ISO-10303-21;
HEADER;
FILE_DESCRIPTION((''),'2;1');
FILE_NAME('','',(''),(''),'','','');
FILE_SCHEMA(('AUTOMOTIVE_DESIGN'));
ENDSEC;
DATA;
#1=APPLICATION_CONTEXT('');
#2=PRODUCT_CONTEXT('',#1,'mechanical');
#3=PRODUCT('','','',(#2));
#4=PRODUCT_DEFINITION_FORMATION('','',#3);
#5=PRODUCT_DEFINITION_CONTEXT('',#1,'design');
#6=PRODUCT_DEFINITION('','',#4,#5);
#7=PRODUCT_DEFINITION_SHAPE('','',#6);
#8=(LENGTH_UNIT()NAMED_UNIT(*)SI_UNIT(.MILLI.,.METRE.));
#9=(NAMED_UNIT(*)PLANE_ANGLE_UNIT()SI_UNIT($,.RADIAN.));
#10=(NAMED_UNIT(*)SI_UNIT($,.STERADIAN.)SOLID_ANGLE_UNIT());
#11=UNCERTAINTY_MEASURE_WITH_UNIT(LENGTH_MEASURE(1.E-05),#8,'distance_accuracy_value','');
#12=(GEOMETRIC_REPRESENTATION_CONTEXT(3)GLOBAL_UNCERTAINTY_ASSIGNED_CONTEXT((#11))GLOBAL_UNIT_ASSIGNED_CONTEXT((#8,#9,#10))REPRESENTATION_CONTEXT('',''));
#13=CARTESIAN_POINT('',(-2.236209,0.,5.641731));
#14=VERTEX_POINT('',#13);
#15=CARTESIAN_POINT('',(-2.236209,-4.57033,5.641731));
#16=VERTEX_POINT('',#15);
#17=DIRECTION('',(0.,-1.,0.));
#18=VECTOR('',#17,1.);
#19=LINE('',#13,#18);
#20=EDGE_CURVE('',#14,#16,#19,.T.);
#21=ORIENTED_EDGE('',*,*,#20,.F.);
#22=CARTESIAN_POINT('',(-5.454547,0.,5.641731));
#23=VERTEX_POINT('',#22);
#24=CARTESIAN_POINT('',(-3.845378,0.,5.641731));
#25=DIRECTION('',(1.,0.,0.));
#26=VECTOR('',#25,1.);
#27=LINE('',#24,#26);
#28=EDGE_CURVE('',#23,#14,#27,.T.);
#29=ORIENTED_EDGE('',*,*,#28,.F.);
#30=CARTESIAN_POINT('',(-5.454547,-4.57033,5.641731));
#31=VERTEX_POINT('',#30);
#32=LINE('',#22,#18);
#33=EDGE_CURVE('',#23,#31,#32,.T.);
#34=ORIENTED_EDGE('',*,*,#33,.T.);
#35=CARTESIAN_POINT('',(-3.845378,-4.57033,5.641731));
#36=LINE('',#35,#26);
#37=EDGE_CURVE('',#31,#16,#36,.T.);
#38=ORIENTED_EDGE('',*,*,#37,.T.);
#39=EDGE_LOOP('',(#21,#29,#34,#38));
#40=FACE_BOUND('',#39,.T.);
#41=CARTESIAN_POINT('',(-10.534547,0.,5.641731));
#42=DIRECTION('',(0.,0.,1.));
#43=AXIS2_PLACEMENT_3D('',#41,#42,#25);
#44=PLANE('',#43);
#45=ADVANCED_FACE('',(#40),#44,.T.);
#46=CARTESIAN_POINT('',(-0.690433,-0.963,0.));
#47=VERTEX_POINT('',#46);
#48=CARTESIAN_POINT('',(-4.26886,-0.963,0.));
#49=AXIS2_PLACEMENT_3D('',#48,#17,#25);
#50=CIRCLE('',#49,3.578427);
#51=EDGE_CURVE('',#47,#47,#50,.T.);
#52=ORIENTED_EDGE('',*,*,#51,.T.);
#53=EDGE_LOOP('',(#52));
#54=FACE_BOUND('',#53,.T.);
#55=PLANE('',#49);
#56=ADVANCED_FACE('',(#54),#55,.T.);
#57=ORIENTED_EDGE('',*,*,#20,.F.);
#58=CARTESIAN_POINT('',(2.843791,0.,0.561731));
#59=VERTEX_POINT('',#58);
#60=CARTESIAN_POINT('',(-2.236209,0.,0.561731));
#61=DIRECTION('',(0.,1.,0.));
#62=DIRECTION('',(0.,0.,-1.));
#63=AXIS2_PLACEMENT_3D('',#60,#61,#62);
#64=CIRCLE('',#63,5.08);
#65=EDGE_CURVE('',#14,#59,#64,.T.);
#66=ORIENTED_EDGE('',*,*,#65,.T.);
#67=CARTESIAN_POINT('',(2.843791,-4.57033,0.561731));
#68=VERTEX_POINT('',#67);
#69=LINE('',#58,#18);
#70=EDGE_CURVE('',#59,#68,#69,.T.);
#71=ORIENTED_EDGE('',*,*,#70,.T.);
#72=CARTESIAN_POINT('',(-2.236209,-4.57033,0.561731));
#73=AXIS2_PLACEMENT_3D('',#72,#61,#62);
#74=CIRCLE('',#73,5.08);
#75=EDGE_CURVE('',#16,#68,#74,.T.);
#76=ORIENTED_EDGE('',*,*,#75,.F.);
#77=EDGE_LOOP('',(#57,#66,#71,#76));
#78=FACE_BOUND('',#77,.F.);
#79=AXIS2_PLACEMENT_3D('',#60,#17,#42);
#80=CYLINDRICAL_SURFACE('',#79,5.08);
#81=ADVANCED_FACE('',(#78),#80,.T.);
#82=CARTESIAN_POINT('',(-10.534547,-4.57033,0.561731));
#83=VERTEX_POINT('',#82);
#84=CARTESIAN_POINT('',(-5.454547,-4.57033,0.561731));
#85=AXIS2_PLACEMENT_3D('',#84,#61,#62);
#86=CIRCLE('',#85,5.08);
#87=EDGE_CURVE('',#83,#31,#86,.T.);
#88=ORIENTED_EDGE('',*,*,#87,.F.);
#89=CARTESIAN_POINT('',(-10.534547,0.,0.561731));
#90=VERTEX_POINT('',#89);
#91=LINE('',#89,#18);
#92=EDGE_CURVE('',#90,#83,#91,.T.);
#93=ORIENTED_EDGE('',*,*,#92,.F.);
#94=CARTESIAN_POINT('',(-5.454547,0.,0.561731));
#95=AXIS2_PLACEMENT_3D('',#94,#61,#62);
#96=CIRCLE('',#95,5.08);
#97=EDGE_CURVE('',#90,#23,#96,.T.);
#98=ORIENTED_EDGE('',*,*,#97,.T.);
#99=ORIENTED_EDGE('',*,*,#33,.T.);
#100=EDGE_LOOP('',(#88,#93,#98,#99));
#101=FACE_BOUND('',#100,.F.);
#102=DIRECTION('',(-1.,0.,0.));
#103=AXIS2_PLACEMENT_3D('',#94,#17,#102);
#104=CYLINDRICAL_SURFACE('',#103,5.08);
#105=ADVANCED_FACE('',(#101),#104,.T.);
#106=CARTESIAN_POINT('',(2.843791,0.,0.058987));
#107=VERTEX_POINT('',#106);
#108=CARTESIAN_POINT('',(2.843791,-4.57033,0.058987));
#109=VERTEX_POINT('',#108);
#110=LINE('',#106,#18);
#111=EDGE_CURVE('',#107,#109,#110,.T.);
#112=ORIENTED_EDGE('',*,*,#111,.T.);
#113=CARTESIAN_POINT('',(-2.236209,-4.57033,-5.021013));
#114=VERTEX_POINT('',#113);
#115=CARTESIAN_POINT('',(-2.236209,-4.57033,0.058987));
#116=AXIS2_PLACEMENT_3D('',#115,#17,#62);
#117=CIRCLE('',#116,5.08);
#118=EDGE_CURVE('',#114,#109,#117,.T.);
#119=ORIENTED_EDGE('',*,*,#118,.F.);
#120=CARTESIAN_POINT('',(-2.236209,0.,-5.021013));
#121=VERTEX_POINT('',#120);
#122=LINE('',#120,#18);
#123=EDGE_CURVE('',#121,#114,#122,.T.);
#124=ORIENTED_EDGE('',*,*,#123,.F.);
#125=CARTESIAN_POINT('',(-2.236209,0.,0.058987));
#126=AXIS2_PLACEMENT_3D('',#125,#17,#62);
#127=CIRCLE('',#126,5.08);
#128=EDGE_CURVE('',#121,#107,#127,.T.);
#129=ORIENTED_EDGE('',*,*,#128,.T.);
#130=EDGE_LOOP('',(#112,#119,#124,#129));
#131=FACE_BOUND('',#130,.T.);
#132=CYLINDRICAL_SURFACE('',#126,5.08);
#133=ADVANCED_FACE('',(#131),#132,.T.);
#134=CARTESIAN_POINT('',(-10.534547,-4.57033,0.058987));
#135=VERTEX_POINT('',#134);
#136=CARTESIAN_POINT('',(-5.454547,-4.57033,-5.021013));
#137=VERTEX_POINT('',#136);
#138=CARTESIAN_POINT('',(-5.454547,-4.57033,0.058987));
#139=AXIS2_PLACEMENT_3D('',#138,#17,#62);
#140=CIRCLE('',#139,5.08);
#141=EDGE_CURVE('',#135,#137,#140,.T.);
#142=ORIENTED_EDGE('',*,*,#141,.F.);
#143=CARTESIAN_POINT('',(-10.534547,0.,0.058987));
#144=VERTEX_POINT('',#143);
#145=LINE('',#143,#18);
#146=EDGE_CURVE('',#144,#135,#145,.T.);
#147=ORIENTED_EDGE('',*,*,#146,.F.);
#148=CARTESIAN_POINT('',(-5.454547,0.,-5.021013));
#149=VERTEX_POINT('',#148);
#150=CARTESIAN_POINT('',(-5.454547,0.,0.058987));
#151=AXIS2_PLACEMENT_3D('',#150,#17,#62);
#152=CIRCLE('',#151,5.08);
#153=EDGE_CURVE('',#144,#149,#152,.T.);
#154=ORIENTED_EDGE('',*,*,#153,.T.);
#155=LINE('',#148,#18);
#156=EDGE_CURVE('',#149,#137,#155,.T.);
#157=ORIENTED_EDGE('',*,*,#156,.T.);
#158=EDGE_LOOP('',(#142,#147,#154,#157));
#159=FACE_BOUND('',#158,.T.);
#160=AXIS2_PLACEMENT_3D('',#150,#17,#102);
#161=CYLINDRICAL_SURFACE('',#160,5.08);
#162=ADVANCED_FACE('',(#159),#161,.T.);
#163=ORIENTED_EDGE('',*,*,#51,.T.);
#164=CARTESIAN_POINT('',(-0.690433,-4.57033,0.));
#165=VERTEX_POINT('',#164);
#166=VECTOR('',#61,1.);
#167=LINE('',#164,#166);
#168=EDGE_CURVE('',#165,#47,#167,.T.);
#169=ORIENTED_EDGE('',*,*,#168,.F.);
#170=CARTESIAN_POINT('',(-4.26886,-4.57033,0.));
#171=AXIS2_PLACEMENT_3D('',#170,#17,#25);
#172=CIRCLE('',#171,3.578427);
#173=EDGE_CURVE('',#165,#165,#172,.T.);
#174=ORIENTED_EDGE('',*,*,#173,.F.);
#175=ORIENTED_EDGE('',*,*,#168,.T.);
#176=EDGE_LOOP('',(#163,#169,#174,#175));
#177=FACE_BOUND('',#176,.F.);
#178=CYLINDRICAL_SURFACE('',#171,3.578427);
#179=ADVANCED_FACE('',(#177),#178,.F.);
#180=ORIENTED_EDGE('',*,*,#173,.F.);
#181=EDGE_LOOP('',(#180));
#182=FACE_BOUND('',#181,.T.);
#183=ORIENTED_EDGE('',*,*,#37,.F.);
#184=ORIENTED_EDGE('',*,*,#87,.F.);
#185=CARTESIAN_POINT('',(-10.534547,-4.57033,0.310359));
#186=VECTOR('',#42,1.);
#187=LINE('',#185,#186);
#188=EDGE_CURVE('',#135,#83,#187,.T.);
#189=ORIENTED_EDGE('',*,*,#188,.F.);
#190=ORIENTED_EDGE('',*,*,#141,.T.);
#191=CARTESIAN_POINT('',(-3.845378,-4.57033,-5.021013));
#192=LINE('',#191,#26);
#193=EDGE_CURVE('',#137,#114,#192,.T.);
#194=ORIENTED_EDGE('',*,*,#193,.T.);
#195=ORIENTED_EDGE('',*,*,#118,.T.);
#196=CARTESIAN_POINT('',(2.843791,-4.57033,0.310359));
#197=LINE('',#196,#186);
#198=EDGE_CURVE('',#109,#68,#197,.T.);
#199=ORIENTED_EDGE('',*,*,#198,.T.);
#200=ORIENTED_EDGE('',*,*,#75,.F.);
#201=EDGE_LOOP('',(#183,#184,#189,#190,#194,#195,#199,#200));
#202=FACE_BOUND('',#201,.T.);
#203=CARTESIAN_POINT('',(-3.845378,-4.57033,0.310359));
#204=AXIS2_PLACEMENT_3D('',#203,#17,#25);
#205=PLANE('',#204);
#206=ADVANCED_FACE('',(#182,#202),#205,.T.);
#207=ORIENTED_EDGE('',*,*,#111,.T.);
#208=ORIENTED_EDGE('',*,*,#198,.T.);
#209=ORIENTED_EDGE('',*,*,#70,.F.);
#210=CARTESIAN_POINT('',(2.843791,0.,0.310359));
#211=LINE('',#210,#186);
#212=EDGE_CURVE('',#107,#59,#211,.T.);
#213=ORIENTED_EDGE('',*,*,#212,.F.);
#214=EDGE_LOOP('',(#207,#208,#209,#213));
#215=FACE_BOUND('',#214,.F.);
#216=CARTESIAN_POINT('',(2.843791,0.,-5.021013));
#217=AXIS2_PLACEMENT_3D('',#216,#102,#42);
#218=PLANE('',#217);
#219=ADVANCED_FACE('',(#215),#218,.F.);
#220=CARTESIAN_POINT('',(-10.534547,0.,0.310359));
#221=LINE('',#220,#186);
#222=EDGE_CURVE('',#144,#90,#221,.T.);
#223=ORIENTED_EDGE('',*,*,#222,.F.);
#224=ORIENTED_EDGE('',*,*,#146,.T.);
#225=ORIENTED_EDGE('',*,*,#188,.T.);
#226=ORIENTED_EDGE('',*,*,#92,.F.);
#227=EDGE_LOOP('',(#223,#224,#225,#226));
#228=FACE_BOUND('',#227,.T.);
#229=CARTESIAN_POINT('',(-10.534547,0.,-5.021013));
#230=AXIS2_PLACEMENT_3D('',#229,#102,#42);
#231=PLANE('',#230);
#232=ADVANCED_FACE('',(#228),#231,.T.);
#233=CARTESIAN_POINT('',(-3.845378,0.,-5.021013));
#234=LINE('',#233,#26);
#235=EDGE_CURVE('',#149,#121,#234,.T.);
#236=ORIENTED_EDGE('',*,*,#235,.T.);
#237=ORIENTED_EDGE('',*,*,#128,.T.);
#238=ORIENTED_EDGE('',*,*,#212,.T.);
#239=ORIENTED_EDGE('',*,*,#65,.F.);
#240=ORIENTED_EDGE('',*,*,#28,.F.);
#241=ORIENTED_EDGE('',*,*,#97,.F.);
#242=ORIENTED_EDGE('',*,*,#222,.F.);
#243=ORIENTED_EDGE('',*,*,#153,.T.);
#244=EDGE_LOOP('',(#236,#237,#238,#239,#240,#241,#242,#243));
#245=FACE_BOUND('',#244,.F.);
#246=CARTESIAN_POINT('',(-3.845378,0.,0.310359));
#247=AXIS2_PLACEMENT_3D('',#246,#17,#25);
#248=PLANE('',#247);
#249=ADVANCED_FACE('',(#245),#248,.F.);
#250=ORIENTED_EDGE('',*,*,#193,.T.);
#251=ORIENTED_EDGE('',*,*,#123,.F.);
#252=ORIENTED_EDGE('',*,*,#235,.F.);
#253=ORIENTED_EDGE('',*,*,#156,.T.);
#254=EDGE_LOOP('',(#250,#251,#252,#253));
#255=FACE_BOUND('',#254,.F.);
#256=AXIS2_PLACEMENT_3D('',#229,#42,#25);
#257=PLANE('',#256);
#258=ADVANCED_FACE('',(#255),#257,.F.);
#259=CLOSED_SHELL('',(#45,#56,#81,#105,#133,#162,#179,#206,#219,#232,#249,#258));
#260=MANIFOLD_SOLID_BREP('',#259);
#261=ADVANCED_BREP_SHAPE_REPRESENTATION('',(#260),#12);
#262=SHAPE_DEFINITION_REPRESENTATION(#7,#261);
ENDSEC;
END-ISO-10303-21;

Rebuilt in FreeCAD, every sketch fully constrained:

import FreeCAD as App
import Part
import Sketcher

V = App.Vector
Q = App.Units.Quantity


def edges_at(feature, points):
    """Names of the edges that pass closest to the given points."""
    edges = feature.Shape.Edges
    near = lambda p: min(range(len(edges)), key=lambda i: edges[i].distToShape(Part.Vertex(*p))[0])
    return sorted({f"Edge{near(p) + 1}" for p in points})

doc = App.newDocument("Part")
body = doc.addObject("PartDesign::Body", "Body")

# Sketch on XZ plane
sketch1 = body.newObject("Sketcher::SketchObject", "Sketch")
sketch1.AttachmentSupport = (doc.getObject("XZ_Plane"), [""])
sketch1.MapMode = "FlatFace"
sketch1.addGeometry(Part.LineSegment(V(-11, 6, 0), V(-11, -5, 0)), False)
sketch1.addGeometry(Part.LineSegment(V(-11, -5, 0), V(3, -5, 0)), False)
sketch1.addGeometry(Part.LineSegment(V(3, -5, 0), V(3, 6, 0)), False)
sketch1.addGeometry(Part.LineSegment(V(3, 6, 0), V(-11, 6, 0)), False)
sketch1.addConstraint(Sketcher.Constraint("Coincident", 0, 2, 1, 1))
sketch1.addConstraint(Sketcher.Constraint("Coincident", 1, 2, 2, 1))
sketch1.addConstraint(Sketcher.Constraint("Coincident", 2, 2, 3, 1))
sketch1.addConstraint(Sketcher.Constraint("Coincident", 3, 2, 0, 1))
sketch1.addConstraint(Sketcher.Constraint("Vertical", 0))
sketch1.addConstraint(Sketcher.Constraint("Horizontal", 1))
sketch1.addConstraint(Sketcher.Constraint("Vertical", 2))
sketch1.addConstraint(Sketcher.Constraint("Horizontal", 3))
sketch1.addConstraint(Sketcher.Constraint("DistanceX", 1, 1, 1, 2, Q("13.378338 mm")))
sketch1.addConstraint(Sketcher.Constraint("DistanceY", 0, 2, 0, 1, Q("10.662744 mm")))
sketch1.addConstraint(Sketcher.Constraint("DistanceX", -1, 1, 1, 2, Q("2.843791 mm")))
sketch1.addConstraint(Sketcher.Constraint("DistanceY", -1, 1, 2, 2, Q("5.641731 mm")))
pad1 = body.newObject("PartDesign::Pad", "Pad")
pad1.Profile = sketch1
pad1.Length = 4.57033

# Sketch on XZ plane
sketch2 = body.newObject("Sketcher::SketchObject", "Sketch001")
sketch2.AttachmentSupport = (doc.getObject("XZ_Plane"), [""])
sketch2.MapMode = "FlatFace"
sketch2.AttachmentOffset = App.Placement(V(0, 0, 4.57033), App.Rotation())
sketch2.addGeometry(Part.Circle(V(-4.3, 0, 0), V(0, 0, 1), 3.6), False)
sketch2.addConstraint(Sketcher.Constraint("PointOnObject", 0, 3, -1))
sketch2.addConstraint(Sketcher.Constraint("Diameter", 0, Q("7.156854 mm")))
sketch2.addConstraint(Sketcher.Constraint("DistanceX", 0, 3, -1, 1, Q("4.26886 mm")))
pocket1 = body.newObject("PartDesign::Pocket", "Pocket")
pocket1.Profile = sketch2
pocket1.Length = 3.60733
doc.recompute()

fillet = body.newObject("PartDesign::Fillet", "Fillet")
fillet.Base = (pocket1, edges_at(pocket1, [
    (2.844, -2.285, -5.021),
    (2.844, -2.285, 5.642),
    (-10.535, -2.285, 5.642),
    (-10.535, -2.285, -5.021),
]))
fillet.Radius = Q("0.2 in")

doc.recompute()
